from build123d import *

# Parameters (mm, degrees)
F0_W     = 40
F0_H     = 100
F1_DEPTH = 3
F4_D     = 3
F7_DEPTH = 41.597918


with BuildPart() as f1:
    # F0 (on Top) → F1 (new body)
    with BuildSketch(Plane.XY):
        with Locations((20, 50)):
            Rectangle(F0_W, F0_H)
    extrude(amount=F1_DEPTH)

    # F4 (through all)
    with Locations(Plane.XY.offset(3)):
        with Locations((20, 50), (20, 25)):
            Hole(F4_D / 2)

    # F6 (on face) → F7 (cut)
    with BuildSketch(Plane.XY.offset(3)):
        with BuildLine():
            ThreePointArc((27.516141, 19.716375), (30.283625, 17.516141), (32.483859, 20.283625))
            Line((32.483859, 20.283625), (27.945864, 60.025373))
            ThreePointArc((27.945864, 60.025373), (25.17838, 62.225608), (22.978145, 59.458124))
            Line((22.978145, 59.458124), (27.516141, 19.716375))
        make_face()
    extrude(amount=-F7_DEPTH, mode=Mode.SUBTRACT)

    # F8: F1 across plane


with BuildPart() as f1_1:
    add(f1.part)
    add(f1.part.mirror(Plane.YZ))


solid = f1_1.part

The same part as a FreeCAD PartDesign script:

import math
import FreeCAD as App
import Part
import Sketcher
from FreeCAD import Vector
Q = App.Units.Quantity

doc = App.newDocument("Part")
body = doc.addObject("PartDesign::Body", "Body")

sketch1 = body.newObject("Sketcher::SketchObject", "Sketch")
sketch1.AttachmentSupport = (doc.getObject("XY_Plane"), [""])
sketch1.MapMode = "FlatFace"
sketch1.addGeometry([
    Part.LineSegment(Vector(0, 100, 0), Vector(0, 0, 0)),
    Part.LineSegment(Vector(0, 0, 0), Vector(40, 0, 0)),
    Part.LineSegment(Vector(40, 0, 0), Vector(40, 100, 0)),
    Part.LineSegment(Vector(40, 100, 0), Vector(0, 100, 0)),
], False)
sketch1.addConstraint([
    Sketcher.Constraint("Coincident", 0, 2, 1, 1),
    Sketcher.Constraint("Coincident", 1, 2, 2, 1),
    Sketcher.Constraint("Coincident", 2, 2, 3, 1),
    Sketcher.Constraint("Coincident", 3, 2, 0, 1),
    Sketcher.Constraint("Vertical", 0),
    Sketcher.Constraint("Horizontal", 1),
    Sketcher.Constraint("Vertical", 2),
    Sketcher.Constraint("Horizontal", 3),
    Sketcher.Constraint("Coincident", 0, 2, -1, 1),
    Sketcher.Constraint("DistanceX", 1, 1, 1, 2, Q("40 mm")),
    Sketcher.Constraint("DistanceY", 0, 2, 0, 1, Q("100 mm")),
])
pad1 = body.newObject("PartDesign::Pad", "Pad")
pad1.Profile = sketch1
pad1.Length = 3

sketch2 = body.newObject("Sketcher::SketchObject", "Sketch001")
sketch2.AttachmentSupport = (doc.getObject("XY_Plane"), [""])
sketch2.MapMode = "FlatFace"
sketch2.AttachmentOffset = App.Placement(Vector(0, 0, 3), App.Rotation())
sketch2.addGeometry([
    Part.Circle(Vector(20, 50, 0), Vector(0, 0, 1), 1.5),
    Part.Circle(Vector(20, 25, 0), Vector(0, 0, 1), 1.5),
], False)
sketch2.addConstraint([
    Sketcher.Constraint("Equal", 0, 1),
    Sketcher.Constraint("Vertical", 0, 3, 1, 3),
    Sketcher.Constraint("Diameter", 0, Q("3 mm")),
    Sketcher.Constraint("DistanceX", -1, 1, 0, 3, Q("20 mm")),
    Sketcher.Constraint("DistanceY", -1, 1, 0, 3, Q("50 mm")),
    Sketcher.Constraint("DistanceY", -1, 1, 1, 3, Q("25 mm")),
])
doc.recompute()
hole = body.newObject("PartDesign::Hole", "Hole")
hole.Profile = sketch2
hole.ThreadType = "None"
hole.Diameter = 3
hole.DepthType = "ThroughAll"

sketch3 = body.newObject("Sketcher::SketchObject", "Sketch002")
sketch3.AttachmentSupport = (doc.getObject("XY_Plane"), [""])
sketch3.MapMode = "FlatFace"
sketch3.AttachmentOffset = App.Placement(Vector(0, 0, 3), App.Rotation())
sketch3.addGeometry([
    Part.ArcOfCircle(Part.Circle(Vector(30, 20, 0), Vector(0, 0, 1), 2.5), math.radians(-173.485768), math.radians(6.514232)),
    Part.LineSegment(Vector(32.483859, 20.283625, 0), Vector(27.945864, 60.025373, 0)),
    Part.ArcOfCircle(Part.Circle(Vector(25.462004, 59.741748, 0), Vector(0, 0, 1), 2.5), math.radians(6.51422), math.radians(186.51422)),
    Part.LineSegment(Vector(22.978145, 59.458124, 0), Vector(27.516141, 19.716375, 0)),
], False)
sketch3.addConstraint([
    Sketcher.Constraint("Coincident", 0, 2, 1, 1),
    Sketcher.Constraint("Coincident", 1, 2, 2, 1),
    Sketcher.Constraint("Coincident", 2, 2, 3, 1),
    Sketcher.Constraint("Coincident", 3, 2, 0, 1),
    Sketcher.Constraint("Radius", 0, Q("2.5 mm")),
    Sketcher.Constraint("Radius", 2, Q("2.5 mm")),
    Sketcher.Constraint("Distance", 1, Q("39.999999 mm")),
    Sketcher.Constraint("Distance", 3, Q("40 mm")),
    Sketcher.Constraint("DistanceX", -1, 1, 0, 3, Q("30 mm")),
    Sketcher.Constraint("DistanceY", -1, 1, 0, 3, Q("20 mm")),
    Sketcher.Constraint("DistanceY", 3, 2, 1, 2, Q("40.308998 mm")),
    Sketcher.Constraint("DistanceY", 0, 2, 2, 2, Q("39.174499 mm")),
    Sketcher.Constraint("DistanceY", -1, 1, 2, 3, Q("59.741748 mm")),
    Sketcher.Constraint("DistanceX", -1, 1, 0, 2, Q("32.483859 mm")),
])
pocket1 = body.newObject("PartDesign::Pocket", "Pocket")
pocket1.Profile = sketch3
pocket1.Length = 41.597918
body2 = doc.addObject("PartDesign::Body", "Body001")
doc.recompute()

body2.BaseFeature = body
doc.recompute()

mirroring = doc.addObject("Part::Mirroring", "Mirroring")
mirroring.Source = body
mirroring.Base = Vector(0, 0, 0)
mirroring.Normal = Vector(1, 0, 0)
body3 = doc.addObject("PartDesign::Body", "Body002")
body3.BaseFeature = mirroring
boolean = body2.newObject("PartDesign::Boolean", "Boolean")
boolean.Type = "Fuse"
boolean.addObjects([body3])
doc.recompute()
mirroring.Visibility = False

doc.recompute()
